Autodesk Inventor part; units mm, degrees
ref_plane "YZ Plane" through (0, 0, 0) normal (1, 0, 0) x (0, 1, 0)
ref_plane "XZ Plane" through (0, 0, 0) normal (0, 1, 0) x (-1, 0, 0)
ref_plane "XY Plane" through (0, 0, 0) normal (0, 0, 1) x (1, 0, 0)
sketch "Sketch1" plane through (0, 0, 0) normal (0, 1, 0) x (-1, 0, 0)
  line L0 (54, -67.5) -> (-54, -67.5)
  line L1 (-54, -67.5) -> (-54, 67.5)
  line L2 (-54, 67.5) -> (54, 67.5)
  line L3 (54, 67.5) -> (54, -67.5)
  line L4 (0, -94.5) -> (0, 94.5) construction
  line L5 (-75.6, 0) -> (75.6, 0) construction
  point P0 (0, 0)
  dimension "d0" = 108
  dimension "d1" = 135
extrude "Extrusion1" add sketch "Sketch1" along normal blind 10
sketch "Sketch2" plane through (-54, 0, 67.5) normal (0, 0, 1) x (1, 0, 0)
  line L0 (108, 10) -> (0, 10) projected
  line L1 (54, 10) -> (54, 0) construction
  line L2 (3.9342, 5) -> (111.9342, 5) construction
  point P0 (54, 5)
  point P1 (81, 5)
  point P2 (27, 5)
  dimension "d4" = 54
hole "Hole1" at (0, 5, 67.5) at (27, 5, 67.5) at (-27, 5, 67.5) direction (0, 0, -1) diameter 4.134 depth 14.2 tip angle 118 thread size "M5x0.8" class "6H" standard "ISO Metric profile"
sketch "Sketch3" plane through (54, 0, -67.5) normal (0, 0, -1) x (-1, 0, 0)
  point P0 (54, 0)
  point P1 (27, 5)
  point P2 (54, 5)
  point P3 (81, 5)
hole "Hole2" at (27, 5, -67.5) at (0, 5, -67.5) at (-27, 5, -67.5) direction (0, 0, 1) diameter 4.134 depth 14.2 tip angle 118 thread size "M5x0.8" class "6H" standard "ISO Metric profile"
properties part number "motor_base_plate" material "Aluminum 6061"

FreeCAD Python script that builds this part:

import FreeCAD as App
import Part
import Sketcher

V = App.Vector
Q = App.Units.Quantity


def add_polygon(sketch, points):
    """Adds a closed chain of lines whose ends are joined by coincident constraints."""
    first, n = sketch.GeometryCount, len(points)
    for a, b in zip(points, points[1:] + points[:1]):
        sketch.addGeometry(Part.LineSegment(App.Vector(*a, 0), App.Vector(*b, 0)), False)
    for i in range(n):
        sketch.addConstraint(Sketcher.Constraint("Coincident", first + i, 2, first + (i + 1) % n, 1))

doc = App.newDocument("Part")
params = doc.addObject("Spreadsheet::Sheet", "Params")
for row, (alias, value) in enumerate([
    ("sketch1_width", "108 mm"),
    ("sketch1_height", "135 mm"),
    ("pad1_length", "10 mm"),
    ("hole_diameter", "4.134 mm"),
    ("hole_depth", "14.2 mm"),
    ("hole2_diameter", "4.134 mm"),
    ("hole2_depth", "14.2 mm"),
], start=1):
    params.set(f"A{row}", alias)
    params.set(f"B{row}", "=" + value)
    params.setAlias(f"B{row}", alias)

body = doc.addObject("PartDesign::Body", "Body")

sketch1 = body.newObject("Sketcher::SketchObject", "Sketch")
sketch1.AttachmentSupport = (doc.getObject("XZ_Plane"), [""])
sketch1.MapMode = "FlatFace"
add_polygon(sketch1, [(54, -67.5), (-54, -67.5), (-54, 67.5), (54, 67.5)])
sketch1.addConstraint(Sketcher.Constraint("Horizontal", 0))
sketch1.addConstraint(Sketcher.Constraint("Vertical", 1))
sketch1.addConstraint(Sketcher.Constraint("Horizontal", 2))
sketch1.addConstraint(Sketcher.Constraint("Vertical", 3))
sketch1.addConstraint(Sketcher.Constraint("Symmetric", 0, 2, 2, 2, -1, 1))
sketch1.addConstraint(Sketcher.Constraint("DistanceX", 0, 2, 0, 1, Q("108 mm")))
sketch1.addConstraint(Sketcher.Constraint("DistanceY", 1, 1, 1, 2, Q("135 mm")))
sketch1.setExpression("Constraints[9]", "Params.sketch1_width")
sketch1.setExpression("Constraints[10]", "Params.sketch1_height")
pad1 = body.newObject("PartDesign::Pad", "Pad")
pad1.Profile = sketch1
pad1.setExpression("Length", "Params.pad1_length")
pad1.Reversed = True

sketch2 = body.newObject("Sketcher::SketchObject", "Sketch001")
sketch2.AttachmentSupport = (doc.getObject("XY_Plane"), [""])
sketch2.MapMode = "FlatFace"
sketch2.AttachmentOffset = App.Placement(V(0, 0, 67.5), App.Rotation())
sketch2.addGeometry(Part.Circle(V(0, 5, 0), V(0, 0, 1), 2.067), False)
sketch2.addGeometry(Part.Circle(V(27, 5, 0), V(0, 0, 1), 2.067), False)
sketch2.addGeometry(Part.Circle(V(-27, 5, 0), V(0, 0, 1), 2.067), False)
sketch2.addConstraint(Sketcher.Constraint("Equal", 0, 1))
sketch2.addConstraint(Sketcher.Constraint("Equal", 1, 2))
sketch2.addConstraint(Sketcher.Constraint("Symmetric", 1, 3, 2, 3, -2))
sketch2.addConstraint(Sketcher.Constraint("PointOnObject", 0, 3, -2))
sketch2.addConstraint(Sketcher.Constraint("Horizontal", 0, 3, 1, 3))
sketch2.addConstraint(Sketcher.Constraint("Diameter", 0, Q("4.134 mm")))
sketch2.addConstraint(Sketcher.Constraint("DistanceY", -1, 1, 0, 3, Q("5 mm")))
sketch2.addConstraint(Sketcher.Constraint("DistanceX", -1, 1, 1, 3, Q("27 mm")))
doc.recompute()
hole = body.newObject("PartDesign::Hole", "Hole")
hole.Profile = sketch2
hole.ThreadType = "None"
hole.setExpression("Diameter", "Params.hole_diameter")
hole.DepthType = "Dimension"
hole.setExpression("Depth", "Params.hole_depth")
hole.DrillPoint = "Angled"
hole.DrillPointAngle = 118

sketch3 = body.newObject("Sketcher::SketchObject", "Sketch002")
sketch3.AttachmentSupport = (doc.getObject("XY_Plane"), [""])
sketch3.MapMode = "FlatFace"
sketch3.AttachmentOffset = App.Placement(V(0, 0, -67.5), App.Rotation())
sketch3.addGeometry(Part.Circle(V(27, 5, 0), V(0, 0, 1), 2.067), False)
sketch3.addGeometry(Part.Circle(V(0, 5, 0), V(0, 0, 1), 2.067), False)
sketch3.addGeometry(Part.Circle(V(-27, 5, 0), V(0, 0, 1), 2.067), False)
sketch3.addConstraint(Sketcher.Constraint("Equal", 0, 1))
sketch3.addConstraint(Sketcher.Constraint("Equal", 1, 2))
sketch3.addConstraint(Sketcher.Constraint("Symmetric", 0, 3, 2, 3, -2))
sketch3.addConstraint(Sketcher.Constraint("PointOnObject", 1, 3, -2))
sketch3.addConstraint(Sketcher.Constraint("Horizontal", 0, 3, 1, 3))
sketch3.addConstraint(Sketcher.Constraint("Diameter", 0, Q("4.134 mm")))
sketch3.addConstraint(Sketcher.Constraint("DistanceX", -1, 1, 0, 3, Q("27 mm")))
sketch3.addConstraint(Sketcher.Constraint("DistanceY", -1, 1, 0, 3, Q("5 mm")))
doc.recompute()
hole2 = body.newObject("PartDesign::Hole", "Hole001")
hole2.Profile = sketch3
hole2.ThreadType = "None"
hole2.setExpression("Diameter", "Params.hole2_diameter")
hole2.DepthType = "Dimension"
hole2.setExpression("Depth", "Params.hole2_depth")
hole2.DrillPoint = "Angled"
hole2.DrillPointAngle = 118
hole2.Reversed = True

doc.recompute()
